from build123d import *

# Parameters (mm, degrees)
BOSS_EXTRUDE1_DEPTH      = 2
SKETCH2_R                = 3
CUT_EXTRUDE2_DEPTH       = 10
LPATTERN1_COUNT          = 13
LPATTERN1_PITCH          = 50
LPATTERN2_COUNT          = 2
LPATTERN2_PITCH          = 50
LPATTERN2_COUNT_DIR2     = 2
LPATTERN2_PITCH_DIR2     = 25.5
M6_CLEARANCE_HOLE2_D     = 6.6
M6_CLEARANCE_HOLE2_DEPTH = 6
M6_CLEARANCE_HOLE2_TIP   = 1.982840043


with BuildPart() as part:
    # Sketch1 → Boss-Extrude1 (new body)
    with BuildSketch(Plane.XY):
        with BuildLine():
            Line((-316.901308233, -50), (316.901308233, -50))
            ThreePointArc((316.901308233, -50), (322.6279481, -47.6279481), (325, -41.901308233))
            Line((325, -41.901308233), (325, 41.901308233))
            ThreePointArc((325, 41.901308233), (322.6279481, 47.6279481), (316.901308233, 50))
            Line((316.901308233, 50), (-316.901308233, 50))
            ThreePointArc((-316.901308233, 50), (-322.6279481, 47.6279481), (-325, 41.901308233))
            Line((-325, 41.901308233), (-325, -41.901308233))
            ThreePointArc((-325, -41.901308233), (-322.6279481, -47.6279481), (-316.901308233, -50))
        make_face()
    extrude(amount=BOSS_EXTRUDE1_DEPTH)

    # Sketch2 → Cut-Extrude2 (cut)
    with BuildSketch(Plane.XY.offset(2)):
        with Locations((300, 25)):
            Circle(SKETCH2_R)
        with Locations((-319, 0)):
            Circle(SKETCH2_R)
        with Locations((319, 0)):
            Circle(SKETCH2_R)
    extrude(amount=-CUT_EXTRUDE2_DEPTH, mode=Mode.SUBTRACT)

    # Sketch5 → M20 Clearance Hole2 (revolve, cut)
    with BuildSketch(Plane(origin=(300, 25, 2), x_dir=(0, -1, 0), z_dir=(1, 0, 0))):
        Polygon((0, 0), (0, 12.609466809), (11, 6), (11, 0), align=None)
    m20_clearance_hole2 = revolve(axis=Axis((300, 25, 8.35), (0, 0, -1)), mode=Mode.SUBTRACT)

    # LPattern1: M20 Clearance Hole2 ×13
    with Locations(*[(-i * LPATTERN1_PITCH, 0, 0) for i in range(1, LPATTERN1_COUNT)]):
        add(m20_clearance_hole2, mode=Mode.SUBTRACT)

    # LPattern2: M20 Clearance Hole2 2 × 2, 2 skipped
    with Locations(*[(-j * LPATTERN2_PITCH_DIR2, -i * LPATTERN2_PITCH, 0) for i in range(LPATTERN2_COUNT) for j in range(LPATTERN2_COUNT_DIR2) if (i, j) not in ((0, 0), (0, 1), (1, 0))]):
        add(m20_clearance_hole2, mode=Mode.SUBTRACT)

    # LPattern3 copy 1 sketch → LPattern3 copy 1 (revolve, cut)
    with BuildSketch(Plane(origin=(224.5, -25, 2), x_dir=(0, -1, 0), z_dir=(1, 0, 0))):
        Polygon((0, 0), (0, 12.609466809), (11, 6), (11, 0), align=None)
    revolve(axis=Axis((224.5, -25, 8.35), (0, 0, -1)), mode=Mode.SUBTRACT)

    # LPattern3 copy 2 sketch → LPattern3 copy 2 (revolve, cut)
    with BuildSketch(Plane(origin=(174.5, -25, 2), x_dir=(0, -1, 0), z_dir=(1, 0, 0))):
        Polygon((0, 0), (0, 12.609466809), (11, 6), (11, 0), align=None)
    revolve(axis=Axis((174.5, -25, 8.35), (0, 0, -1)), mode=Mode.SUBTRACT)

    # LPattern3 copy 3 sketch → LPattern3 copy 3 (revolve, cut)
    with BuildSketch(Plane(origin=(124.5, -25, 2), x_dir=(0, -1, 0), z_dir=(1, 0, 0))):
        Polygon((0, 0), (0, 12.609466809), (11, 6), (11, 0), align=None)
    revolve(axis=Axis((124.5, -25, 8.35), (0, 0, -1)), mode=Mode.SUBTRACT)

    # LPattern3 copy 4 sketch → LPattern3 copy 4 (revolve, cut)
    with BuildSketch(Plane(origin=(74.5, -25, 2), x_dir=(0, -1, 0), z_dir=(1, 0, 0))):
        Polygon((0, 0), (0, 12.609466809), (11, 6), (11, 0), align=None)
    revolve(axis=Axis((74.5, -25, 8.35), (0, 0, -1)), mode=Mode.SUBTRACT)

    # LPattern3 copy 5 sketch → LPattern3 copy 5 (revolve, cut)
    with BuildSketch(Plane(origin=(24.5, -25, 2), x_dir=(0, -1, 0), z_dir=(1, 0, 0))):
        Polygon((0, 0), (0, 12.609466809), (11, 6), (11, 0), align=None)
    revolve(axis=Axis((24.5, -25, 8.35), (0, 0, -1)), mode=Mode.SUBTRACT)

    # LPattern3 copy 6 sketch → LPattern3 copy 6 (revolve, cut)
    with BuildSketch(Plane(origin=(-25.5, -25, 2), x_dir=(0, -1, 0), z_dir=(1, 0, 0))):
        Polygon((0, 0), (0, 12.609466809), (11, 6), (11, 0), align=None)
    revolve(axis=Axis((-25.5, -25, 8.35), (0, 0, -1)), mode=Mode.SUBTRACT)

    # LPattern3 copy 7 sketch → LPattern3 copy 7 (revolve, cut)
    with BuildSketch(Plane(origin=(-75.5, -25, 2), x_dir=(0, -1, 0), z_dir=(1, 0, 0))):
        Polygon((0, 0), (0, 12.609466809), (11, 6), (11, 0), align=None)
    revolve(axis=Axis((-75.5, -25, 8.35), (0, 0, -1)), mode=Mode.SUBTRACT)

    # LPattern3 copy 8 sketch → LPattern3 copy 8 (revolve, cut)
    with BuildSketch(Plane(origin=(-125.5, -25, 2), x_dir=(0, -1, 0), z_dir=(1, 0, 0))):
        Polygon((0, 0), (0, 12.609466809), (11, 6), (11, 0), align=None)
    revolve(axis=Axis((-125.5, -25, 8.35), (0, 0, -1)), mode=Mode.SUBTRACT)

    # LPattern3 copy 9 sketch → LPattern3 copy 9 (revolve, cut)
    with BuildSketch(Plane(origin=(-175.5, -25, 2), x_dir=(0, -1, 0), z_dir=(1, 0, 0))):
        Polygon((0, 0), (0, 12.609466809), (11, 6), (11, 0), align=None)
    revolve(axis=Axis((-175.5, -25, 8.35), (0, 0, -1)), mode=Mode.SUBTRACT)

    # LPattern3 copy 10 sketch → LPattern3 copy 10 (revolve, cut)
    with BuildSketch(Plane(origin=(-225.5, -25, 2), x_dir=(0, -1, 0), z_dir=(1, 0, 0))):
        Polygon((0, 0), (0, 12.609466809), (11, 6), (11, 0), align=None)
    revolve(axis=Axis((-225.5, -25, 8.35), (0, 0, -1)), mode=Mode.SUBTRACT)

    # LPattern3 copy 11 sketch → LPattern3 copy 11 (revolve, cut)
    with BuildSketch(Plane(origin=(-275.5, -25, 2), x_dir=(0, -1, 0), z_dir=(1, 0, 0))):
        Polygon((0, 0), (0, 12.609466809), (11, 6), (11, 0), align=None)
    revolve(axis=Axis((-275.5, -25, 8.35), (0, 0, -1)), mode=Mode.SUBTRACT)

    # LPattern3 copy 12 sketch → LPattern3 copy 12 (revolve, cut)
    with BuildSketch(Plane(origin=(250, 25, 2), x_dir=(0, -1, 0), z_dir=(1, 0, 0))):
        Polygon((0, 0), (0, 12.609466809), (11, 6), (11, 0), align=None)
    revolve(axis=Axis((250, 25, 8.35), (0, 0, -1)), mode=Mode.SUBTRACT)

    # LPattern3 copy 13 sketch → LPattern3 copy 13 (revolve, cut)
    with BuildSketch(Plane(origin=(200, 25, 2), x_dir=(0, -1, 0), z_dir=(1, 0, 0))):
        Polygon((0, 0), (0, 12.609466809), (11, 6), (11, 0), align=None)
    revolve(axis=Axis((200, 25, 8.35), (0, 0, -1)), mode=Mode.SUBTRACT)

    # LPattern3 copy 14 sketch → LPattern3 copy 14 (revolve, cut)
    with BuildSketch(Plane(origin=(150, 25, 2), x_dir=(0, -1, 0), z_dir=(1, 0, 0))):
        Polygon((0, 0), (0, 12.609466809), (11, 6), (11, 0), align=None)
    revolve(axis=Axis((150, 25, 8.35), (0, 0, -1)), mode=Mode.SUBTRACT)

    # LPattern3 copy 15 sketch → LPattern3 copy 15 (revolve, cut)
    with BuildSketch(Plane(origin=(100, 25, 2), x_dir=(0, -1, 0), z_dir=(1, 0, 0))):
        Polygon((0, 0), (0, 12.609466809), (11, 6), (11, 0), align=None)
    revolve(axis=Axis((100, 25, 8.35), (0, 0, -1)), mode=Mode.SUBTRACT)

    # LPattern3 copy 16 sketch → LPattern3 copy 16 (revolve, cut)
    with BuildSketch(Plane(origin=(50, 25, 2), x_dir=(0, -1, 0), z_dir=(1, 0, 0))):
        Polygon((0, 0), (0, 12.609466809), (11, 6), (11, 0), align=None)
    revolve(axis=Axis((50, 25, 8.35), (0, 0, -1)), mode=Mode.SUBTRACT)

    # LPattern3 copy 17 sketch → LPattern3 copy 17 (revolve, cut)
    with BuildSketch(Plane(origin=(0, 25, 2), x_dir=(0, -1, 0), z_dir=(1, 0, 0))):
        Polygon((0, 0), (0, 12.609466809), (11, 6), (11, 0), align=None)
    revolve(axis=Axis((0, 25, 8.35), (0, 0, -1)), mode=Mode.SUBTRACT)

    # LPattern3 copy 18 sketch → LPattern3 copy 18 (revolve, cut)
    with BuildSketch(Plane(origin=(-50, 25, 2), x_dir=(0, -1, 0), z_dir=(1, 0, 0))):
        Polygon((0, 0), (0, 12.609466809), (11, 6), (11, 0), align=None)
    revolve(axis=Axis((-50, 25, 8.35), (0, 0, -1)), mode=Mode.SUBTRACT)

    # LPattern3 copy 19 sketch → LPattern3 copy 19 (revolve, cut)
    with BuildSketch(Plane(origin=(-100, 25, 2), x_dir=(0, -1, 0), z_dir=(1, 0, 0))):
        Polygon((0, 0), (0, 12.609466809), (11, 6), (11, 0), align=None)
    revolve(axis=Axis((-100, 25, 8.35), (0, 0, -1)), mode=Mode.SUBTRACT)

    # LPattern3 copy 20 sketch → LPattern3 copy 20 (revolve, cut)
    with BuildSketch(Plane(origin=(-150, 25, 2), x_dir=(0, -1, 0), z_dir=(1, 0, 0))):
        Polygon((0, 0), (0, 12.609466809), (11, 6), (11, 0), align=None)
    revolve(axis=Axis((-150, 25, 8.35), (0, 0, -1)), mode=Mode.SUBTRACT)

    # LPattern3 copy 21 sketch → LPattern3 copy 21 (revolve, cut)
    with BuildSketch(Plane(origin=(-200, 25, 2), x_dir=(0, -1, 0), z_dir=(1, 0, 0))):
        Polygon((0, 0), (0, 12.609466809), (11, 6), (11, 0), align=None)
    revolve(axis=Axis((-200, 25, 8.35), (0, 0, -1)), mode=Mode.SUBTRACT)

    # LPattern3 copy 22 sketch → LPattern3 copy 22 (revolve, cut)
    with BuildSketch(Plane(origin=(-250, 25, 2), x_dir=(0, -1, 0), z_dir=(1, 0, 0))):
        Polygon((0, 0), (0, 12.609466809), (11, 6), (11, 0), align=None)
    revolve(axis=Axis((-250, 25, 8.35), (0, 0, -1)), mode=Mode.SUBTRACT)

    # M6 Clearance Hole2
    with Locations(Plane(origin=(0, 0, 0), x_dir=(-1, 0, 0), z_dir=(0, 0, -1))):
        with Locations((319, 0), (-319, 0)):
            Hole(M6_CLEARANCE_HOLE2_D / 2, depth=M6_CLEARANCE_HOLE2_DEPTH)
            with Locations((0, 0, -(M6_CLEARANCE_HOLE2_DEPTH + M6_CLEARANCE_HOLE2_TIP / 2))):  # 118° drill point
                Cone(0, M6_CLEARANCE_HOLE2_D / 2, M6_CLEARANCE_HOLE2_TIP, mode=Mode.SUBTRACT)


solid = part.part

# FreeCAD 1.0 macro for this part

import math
import FreeCAD as App
import Part
import Sketcher
Q = App.Units.Quantity


def add_polygon(sketch, points):
    """Adds a closed chain of lines whose ends are joined by coincident constraints."""
    first, n = sketch.GeometryCount, len(points)
    for a, b in zip(points, points[1:] + points[:1]):
        sketch.addGeometry(Part.LineSegment(App.Vector(*a, 0), App.Vector(*b, 0)), False)
    for i in range(n):
        sketch.addConstraint(Sketcher.Constraint("Coincident", first + i, 2, first + (i + 1) % n, 1))

doc = App.newDocument("Part")
body = doc.addObject("PartDesign::Body", "Body")

sketch1 = doc.addObject("Sketcher::SketchObject", "Sketch")
body.addObject(sketch1)
sketch1.AttachmentSupport = (doc.XY_Plane, [""])
sketch1.MapMode = "FlatFace"
sketch1.addGeometry([
    Part.LineSegment(App.Vector(-316.901308, -50, 0), App.Vector(316.901308, -50, 0)),
    Part.ArcOfCircle(Part.Circle(App.Vector(316.901308, -41.901308, 0), App.Vector(0, 0, 1), 8.098692), math.radians(-90), math.radians(0)),
    Part.LineSegment(App.Vector(325, -41.901308, 0), App.Vector(325, 41.901308, 0)),
    Part.ArcOfCircle(Part.Circle(App.Vector(316.901308, 41.901308, 0), App.Vector(0, 0, 1), 8.098692), math.radians(0), math.radians(90)),
    Part.LineSegment(App.Vector(316.901308, 50, 0), App.Vector(-316.901308, 50, 0)),
    Part.ArcOfCircle(Part.Circle(App.Vector(-316.901308, 41.901308, 0), App.Vector(0, 0, 1), 8.098692), math.radians(90), math.radians(180)),
    Part.LineSegment(App.Vector(-325, 41.901308, 0), App.Vector(-325, -41.901308, 0)),
    Part.ArcOfCircle(Part.Circle(App.Vector(-316.901308, -41.901308, 0), App.Vector(0, 0, 1), 8.098692), math.radians(-180), math.radians(-90)),
], False)
sketch1.addConstraint([
    Sketcher.Constraint("Tangent", 0, 2, 1, 1),
    Sketcher.Constraint("Tangent", 1, 2, 2, 1),
    Sketcher.Constraint("Tangent", 2, 2, 3, 1),
    Sketcher.Constraint("Tangent", 3, 2, 4, 1),
    Sketcher.Constraint("Tangent", 4, 2, 5, 1),
    Sketcher.Constraint("Tangent", 5, 2, 6, 1),
    Sketcher.Constraint("Tangent", 6, 2, 7, 1),
    Sketcher.Constraint("Tangent", 7, 2, 0, 1),
    Sketcher.Constraint("Horizontal", 0),
    Sketcher.Constraint("Vertical", 2),
    Sketcher.Constraint("Horizontal", 4),
    Sketcher.Constraint("Vertical", 6),
    Sketcher.Constraint("Equal", 1, 3),
    Sketcher.Constraint("Equal", 3, 5),
    Sketcher.Constraint("Equal", 5, 7),
    Sketcher.Constraint("Symmetric", 1, 3, 5, 3, -1, 1),
    Sketcher.Constraint("DistanceY", 0, 2, -1, 1, 50.0),
    Sketcher.Constraint("DistanceX", -1, 1, 1, 2, 325.0),
    Sketcher.Constraint("Radius", 1, 8.098692),
])
pad1 = doc.addObject("PartDesign::Pad", "Pad")
body.addObject(pad1)
pad1.Profile = sketch1
pad1.Length = 2

sketch2 = doc.addObject("Sketcher::SketchObject", "Sketch001")
body.addObject(sketch2)
sketch2.AttachmentSupport = (doc.XY_Plane, [""])
sketch2.MapMode = "FlatFace"
sketch2.AttachmentOffset = App.Placement(App.Vector(0, 0, 2), App.Rotation())
sketch2.addGeometry([
    Part.Circle(App.Vector(300, 25, 0), App.Vector(0, 0, 1), 3),
    Part.Circle(App.Vector(-319, 0, 0), App.Vector(0, 0, 1), 3),
    Part.Circle(App.Vector(319, 0, 0), App.Vector(0, 0, 1), 3),
], False)
sketch2.addConstraint([
    Sketcher.Constraint("Equal", 0, 1),
    Sketcher.Constraint("Equal", 1, 2),
    Sketcher.Constraint("Symmetric", 1, 3, 2, 3, -1, 1),
    Sketcher.Constraint("PointOnObject", 1, 3, -1),
    Sketcher.Constraint("Diameter", 0, 6.0),
    Sketcher.Constraint("DistanceX", -1, 1, 0, 3, 300.0),
    Sketcher.Constraint("DistanceY", -1, 1, 0, 3, 25.0),
    Sketcher.Constraint("DistanceX", 1, 3, -1, 1, 319.0),
])
pocket1 = doc.addObject("PartDesign::Pocket", "Pocket")
body.addObject(pocket1)
pocket1.Profile = sketch2
pocket1.Length = 10

sketch3 = doc.addObject("Sketcher::SketchObject", "Sketch002")
body.addObject(sketch3)
sketch3.AttachmentSupport = (doc.YZ_Plane, [""])
sketch3.MapMode = "FlatFace"
sketch3.AttachmentOffset = App.Placement(App.Vector(0, 0, 300), App.Rotation())
add_polygon(sketch3, [(25, -10.609467), (25, 2), (14, 2), (14, -4)])
sketch3.addGeometry(Part.LineSegment(App.Vector(25, 2, 0), App.Vector(25, -10.609467, 0)), True)
sketch3.addConstraint([
    Sketcher.Constraint("Vertical", 0),
    Sketcher.Constraint("Horizontal", 1),
    Sketcher.Constraint("Vertical", 2),
    Sketcher.Constraint("Vertical", 4),
    Sketcher.Constraint("Coincident", 4, 1, 0, 2),
    Sketcher.Constraint("Equal", 0, 4),
    Sketcher.Constraint("DistanceX", 1, 2, 1, 1, 11.0),
    Sketcher.Constraint("DistanceY", 2, 2, 2, 1, 6.0),
    Sketcher.Constraint("Angle", 3, Q("-31 deg")),
    Sketcher.Constraint("DistanceX", -1, 1, 0, 2, 25.0),
    Sketcher.Constraint("DistanceY", -1, 1, 0, 2, 2.0),
])
groove = doc.addObject("PartDesign::Groove", "Groove")
body.addObject(groove)
groove.Profile = sketch3
groove.ReferenceAxis = (sketch3, ["Axis0"])
groove.Angle = 360
doc.recompute()

linearpattern = doc.addObject("PartDesign::LinearPattern", "LinearPattern")
body.addObject(linearpattern)
linearpattern.Originals = [groove]
linearpattern.Direction = (doc.X_Axis, [""])
linearpattern.Mode = "offset"
linearpattern.Offset = 50
linearpattern.Occurrences = 13
linearpattern.Reversed = True
body.Tip = linearpattern
doc.recompute()

datumline = doc.addObject("PartDesign::Line", "DatumLine")
body.addObject(datumline)
datumline.Placement = App.Placement(App.Vector(0, 0, 0), App.Rotation(App.Vector(0, 0, 1), App.Vector(-0.454326083, -0.890835456, 0)))
linearpattern2 = doc.addObject("PartDesign::LinearPattern", "LinearPattern001")
body.addObject(linearpattern2)
linearpattern2.Originals = [groove]
linearpattern2.Direction = (datumline, [""])
linearpattern2.Mode = "offset"
linearpattern2.Offset = 56.127088
linearpattern2.Occurrences = 2
body.Tip = linearpattern2

sketch4 = doc.addObject("Sketcher::SketchObject", "Sketch003")
body.addObject(sketch4)
sketch4.AttachmentSupport = (doc.YZ_Plane, [""])
sketch4.MapMode = "FlatFace"
sketch4.AttachmentOffset = App.Placement(App.Vector(0, 0, 224.5), App.Rotation())
add_polygon(sketch4, [(-25, -10.609467), (-25, 2), (-36, 2), (-36, -4)])
sketch4.addGeometry(Part.LineSegment(App.Vector(-25, 2, 0), App.Vector(-25, -10.609467, 0)), True)
sketch4.addConstraint([
    Sketcher.Constraint("Vertical", 0),
    Sketcher.Constraint("Horizontal", 1),
    Sketcher.Constraint("Vertical", 2),
    Sketcher.Constraint("Vertical", 4),
    Sketcher.Constraint("Coincident", 4, 1, 0, 2),
    Sketcher.Constraint("Equal", 0, 4),
    Sketcher.Constraint("DistanceX", 1, 2, 1, 1, 11.0),
    Sketcher.Constraint("DistanceY", 2, 2, 2, 1, 6.0),
    Sketcher.Constraint("Angle", 3, Q("-31 deg")),
    Sketcher.Constraint("DistanceX", 0, 2, -1, 1, 25.0),
    Sketcher.Constraint("DistanceY", -1, 1, 0, 2, 2.0),
])
groove2 = doc.addObject("PartDesign::Groove", "Groove001")
body.addObject(groove2)
groove2.Profile = sketch4
groove2.ReferenceAxis = (sketch4, ["Axis0"])
groove2.Angle = 360

sketch5 = doc.addObject("Sketcher::SketchObject", "Sketch004")
body.addObject(sketch5)
sketch5.AttachmentSupport = (doc.YZ_Plane, [""])
sketch5.MapMode = "FlatFace"
sketch5.AttachmentOffset = App.Placement(App.Vector(0, 0, 174.5), App.Rotation())
add_polygon(sketch5, [(-25, -10.609467), (-25, 2), (-36, 2), (-36, -4)])
sketch5.addGeometry(Part.LineSegment(App.Vector(-25, 2, 0), App.Vector(-25, -10.609467, 0)), True)
sketch5.addConstraint([
    Sketcher.Constraint("Vertical", 0),
    Sketcher.Constraint("Horizontal", 1),
    Sketcher.Constraint("Vertical", 2),
    Sketcher.Constraint("Vertical", 4),
    Sketcher.Constraint("Coincident", 4, 1, 0, 2),
    Sketcher.Constraint("Equal", 0, 4),
    Sketcher.Constraint("DistanceX", 1, 2, 1, 1, 11.0),
    Sketcher.Constraint("DistanceY", 2, 2, 2, 1, 6.0),
    Sketcher.Constraint("Angle", 3, Q("-31 deg")),
    Sketcher.Constraint("DistanceX", 0, 2, -1, 1, 25.0),
    Sketcher.Constraint("DistanceY", -1, 1, 0, 2, 2.0),
])
groove3 = doc.addObject("PartDesign::Groove", "Groove002")
body.addObject(groove3)
groove3.Profile = sketch5
groove3.ReferenceAxis = (sketch5, ["Axis0"])
groove3.Angle = 360

sketch6 = doc.addObject("Sketcher::SketchObject", "Sketch005")
body.addObject(sketch6)
sketch6.AttachmentSupport = (doc.YZ_Plane, [""])
sketch6.MapMode = "FlatFace"
sketch6.AttachmentOffset = App.Placement(App.Vector(0, 0, 124.5), App.Rotation())
add_polygon(sketch6, [(-25, -10.609467), (-25, 2), (-36, 2), (-36, -4)])
sketch6.addGeometry(Part.LineSegment(App.Vector(-25, 2, 0), App.Vector(-25, -10.609467, 0)), True)
sketch6.addConstraint([
    Sketcher.Constraint("Vertical", 0),
    Sketcher.Constraint("Horizontal", 1),
    Sketcher.Constraint("Vertical", 2),
    Sketcher.Constraint("Vertical", 4),
    Sketcher.Constraint("Coincident", 4, 1, 0, 2),
    Sketcher.Constraint("Equal", 0, 4),
    Sketcher.Constraint("DistanceX", 1, 2, 1, 1, 11.0),
    Sketcher.Constraint("DistanceY", 2, 2, 2, 1, 6.0),
    Sketcher.Constraint("Angle", 3, Q("-31 deg")),
    Sketcher.Constraint("DistanceX", 0, 2, -1, 1, 25.0),
    Sketcher.Constraint("DistanceY", -1, 1, 0, 2, 2.0),
])
groove4 = doc.addObject("PartDesign::Groove", "Groove003")
body.addObject(groove4)
groove4.Profile = sketch6
groove4.ReferenceAxis = (sketch6, ["Axis0"])
groove4.Angle = 360

sketch7 = doc.addObject("Sketcher::SketchObject", "Sketch006")
body.addObject(sketch7)
sketch7.AttachmentSupport = (doc.YZ_Plane, [""])
sketch7.MapMode = "FlatFace"
sketch7.AttachmentOffset = App.Placement(App.Vector(0, 0, 74.5), App.Rotation())
add_polygon(sketch7, [(-25, -10.609467), (-25, 2), (-36, 2), (-36, -4)])
sketch7.addGeometry(Part.LineSegment(App.Vector(-25, 2, 0), App.Vector(-25, -10.609467, 0)), True)
sketch7.addConstraint([
    Sketcher.Constraint("Vertical", 0),
    Sketcher.Constraint("Horizontal", 1),
    Sketcher.Constraint("Vertical", 2),
    Sketcher.Constraint("Vertical", 4),
    Sketcher.Constraint("Coincident", 4, 1, 0, 2),
    Sketcher.Constraint("Equal", 0, 4),
    Sketcher.Constraint("DistanceX", 1, 2, 1, 1, 11.0),
    Sketcher.Constraint("DistanceY", 2, 2, 2, 1, 6.0),
    Sketcher.Constraint("Angle", 3, Q("-31 deg")),
    Sketcher.Constraint("DistanceX", 0, 2, -1, 1, 25.0),
    Sketcher.Constraint("DistanceY", -1, 1, 0, 2, 2.0),
])
groove5 = doc.addObject("PartDesign::Groove", "Groove004")
body.addObject(groove5)
groove5.Profile = sketch7
groove5.ReferenceAxis = (sketch7, ["Axis0"])
groove5.Angle = 360

sketch8 = doc.addObject("Sketcher::SketchObject", "Sketch007")
body.addObject(sketch8)
sketch8.AttachmentSupport = (doc.YZ_Plane, [""])
sketch8.MapMode = "FlatFace"
sketch8.AttachmentOffset = App.Placement(App.Vector(0, 0, 24.5), App.Rotation())
add_polygon(sketch8, [(-25, -10.609467), (-25, 2), (-36, 2), (-36, -4)])
sketch8.addGeometry(Part.LineSegment(App.Vector(-25, 2, 0), App.Vector(-25, -10.609467, 0)), True)
sketch8.addConstraint([
    Sketcher.Constraint("Vertical", 0),
    Sketcher.Constraint("Horizontal", 1),
    Sketcher.Constraint("Vertical", 2),
    Sketcher.Constraint("Vertical", 4),
    Sketcher.Constraint("Coincident", 4, 1, 0, 2),
    Sketcher.Constraint("Equal", 0, 4),
    Sketcher.Constraint("DistanceX", 1, 2, 1, 1, 11.0),
    Sketcher.Constraint("DistanceY", 2, 2, 2, 1, 6.0),
    Sketcher.Constraint("Angle", 3, Q("-31 deg")),
    Sketcher.Constraint("DistanceX", 0, 2, -1, 1, 25.0),
    Sketcher.Constraint("DistanceY", -1, 1, 0, 2, 2.0),
])
groove6 = doc.addObject("PartDesign::Groove", "Groove005")
body.addObject(groove6)
groove6.Profile = sketch8
groove6.ReferenceAxis = (sketch8, ["Axis0"])
groove6.Angle = 360

sketch9 = doc.addObject("Sketcher::SketchObject", "Sketch008")
body.addObject(sketch9)
sketch9.AttachmentSupport = (doc.YZ_Plane, [""])
sketch9.MapMode = "FlatFace"
sketch9.AttachmentOffset = App.Placement(App.Vector(0, 0, -25.5), App.Rotation())
add_polygon(sketch9, [(-25, -10.609467), (-25, 2), (-36, 2), (-36, -4)])
sketch9.addGeometry(Part.LineSegment(App.Vector(-25, 2, 0), App.Vector(-25, -10.609467, 0)), True)
sketch9.addConstraint([
    Sketcher.Constraint("Vertical", 0),
    Sketcher.Constraint("Horizontal", 1),
    Sketcher.Constraint("Vertical", 2),
    Sketcher.Constraint("Vertical", 4),
    Sketcher.Constraint("Coincident", 4, 1, 0, 2),
    Sketcher.Constraint("Equal", 0, 4),
    Sketcher.Constraint("DistanceX", 1, 2, 1, 1, 11.0),
    Sketcher.Constraint("DistanceY", 2, 2, 2, 1, 6.0),
    Sketcher.Constraint("Angle", 3, Q("-31 deg")),
    Sketcher.Constraint("DistanceX", 0, 2, -1, 1, 25.0),
    Sketcher.Constraint("DistanceY", -1, 1, 0, 2, 2.0),
])
groove7 = doc.addObject("PartDesign::Groove", "Groove006")
body.addObject(groove7)
groove7.Profile = sketch9
groove7.ReferenceAxis = (sketch9, ["Axis0"])
groove7.Angle = 360

sketch10 = doc.addObject("Sketcher::SketchObject", "Sketch009")
body.addObject(sketch10)
sketch10.AttachmentSupport = (doc.YZ_Plane, [""])
sketch10.MapMode = "FlatFace"
sketch10.AttachmentOffset = App.Placement(App.Vector(0, 0, -75.5), App.Rotation())
add_polygon(sketch10, [(-25, -10.609467), (-25, 2), (-36, 2), (-36, -4)])
sketch10.addGeometry(Part.LineSegment(App.Vector(-25, 2, 0), App.Vector(-25, -10.609467, 0)), True)
sketch10.addConstraint([
    Sketcher.Constraint("Vertical", 0),
    Sketcher.Constraint("Horizontal", 1),
    Sketcher.Constraint("Vertical", 2),
    Sketcher.Constraint("Vertical", 4),
    Sketcher.Constraint("Coincident", 4, 1, 0, 2),
    Sketcher.Constraint("Equal", 0, 4),
    Sketcher.Constraint("DistanceX", 1, 2, 1, 1, 11.0),
    Sketcher.Constraint("DistanceY", 2, 2, 2, 1, 6.0),
    Sketcher.Constraint("Angle", 3, Q("-31 deg")),
    Sketcher.Constraint("DistanceX", 0, 2, -1, 1, 25.0),
    Sketcher.Constraint("DistanceY", -1, 1, 0, 2, 2.0),
])
groove8 = doc.addObject("PartDesign::Groove", "Groove007")
body.addObject(groove8)
groove8.Profile = sketch10
groove8.ReferenceAxis = (sketch10, ["Axis0"])
groove8.Angle = 360

sketch11 = doc.addObject("Sketcher::SketchObject", "Sketch010")
body.addObject(sketch11)
sketch11.AttachmentSupport = (doc.YZ_Plane, [""])
sketch11.MapMode = "FlatFace"
sketch11.AttachmentOffset = App.Placement(App.Vector(0, 0, -125.5), App.Rotation())
add_polygon(sketch11, [(-25, -10.609467), (-25, 2), (-36, 2), (-36, -4)])
sketch11.addGeometry(Part.LineSegment(App.Vector(-25, 2, 0), App.Vector(-25, -10.609467, 0)), True)
sketch11.addConstraint([
    Sketcher.Constraint("Vertical", 0),
    Sketcher.Constraint("Horizontal", 1),
    Sketcher.Constraint("Vertical", 2),
    Sketcher.Constraint("Vertical", 4),
    Sketcher.Constraint("Coincident", 4, 1, 0, 2),
    Sketcher.Constraint("Equal", 0, 4),
    Sketcher.Constraint("DistanceX", 1, 2, 1, 1, 11.0),
    Sketcher.Constraint("DistanceY", 2, 2, 2, 1, 6.0),
    Sketcher.Constraint("Angle", 3, Q("-31 deg")),
    Sketcher.Constraint("DistanceX", 0, 2, -1, 1, 25.0),
    Sketcher.Constraint("DistanceY", -1, 1, 0, 2, 2.0),
])
groove9 = doc.addObject("PartDesign::Groove", "Groove008")
body.addObject(groove9)
groove9.Profile = sketch11
groove9.ReferenceAxis = (sketch11, ["Axis0"])
groove9.Angle = 360

sketch12 = doc.addObject("Sketcher::SketchObject", "Sketch011")
body.addObject(sketch12)
sketch12.AttachmentSupport = (doc.YZ_Plane, [""])
sketch12.MapMode = "FlatFace"
sketch12.AttachmentOffset = App.Placement(App.Vector(0, 0, -175.5), App.Rotation())
add_polygon(sketch12, [(-25, -10.609467), (-25, 2), (-36, 2), (-36, -4)])
sketch12.addGeometry(Part.LineSegment(App.Vector(-25, 2, 0), App.Vector(-25, -10.609467, 0)), True)
sketch12.addConstraint([
    Sketcher.Constraint("Vertical", 0),
    Sketcher.Constraint("Horizontal", 1),
    Sketcher.Constraint("Vertical", 2),
    Sketcher.Constraint("Vertical", 4),
    Sketcher.Constraint("Coincident", 4, 1, 0, 2),
    Sketcher.Constraint("Equal", 0, 4),
    Sketcher.Constraint("DistanceX", 1, 2, 1, 1, 11.0),
    Sketcher.Constraint("DistanceY", 2, 2, 2, 1, 6.0),
    Sketcher.Constraint("Angle", 3, Q("-31 deg")),
    Sketcher.Constraint("DistanceX", 0, 2, -1, 1, 25.0),
    Sketcher.Constraint("DistanceY", -1, 1, 0, 2, 2.0),
])
groove10 = doc.addObject("PartDesign::Groove", "Groove009")
body.addObject(groove10)
groove10.Profile = sketch12
groove10.ReferenceAxis = (sketch12, ["Axis0"])
groove10.Angle = 360

sketch13 = doc.addObject("Sketcher::SketchObject", "Sketch012")
body.addObject(sketch13)
sketch13.AttachmentSupport = (doc.YZ_Plane, [""])
sketch13.MapMode = "FlatFace"
sketch13.AttachmentOffset = App.Placement(App.Vector(0, 0, -225.5), App.Rotation())
add_polygon(sketch13, [(-25, -10.609467), (-25, 2), (-36, 2), (-36, -4)])
sketch13.addGeometry(Part.LineSegment(App.Vector(-25, 2, 0), App.Vector(-25, -10.609467, 0)), True)
sketch13.addConstraint([
    Sketcher.Constraint("Vertical", 0),
    Sketcher.Constraint("Horizontal", 1),
    Sketcher.Constraint("Vertical", 2),
    Sketcher.Constraint("Vertical", 4),
    Sketcher.Constraint("Coincident", 4, 1, 0, 2),
    Sketcher.Constraint("Equal", 0, 4),
    Sketcher.Constraint("DistanceX", 1, 2, 1, 1, 11.0),
    Sketcher.Constraint("DistanceY", 2, 2, 2, 1, 6.0),
    Sketcher.Constraint("Angle", 3, Q("-31 deg")),
    Sketcher.Constraint("DistanceX", 0, 2, -1, 1, 25.0),
    Sketcher.Constraint("DistanceY", -1, 1, 0, 2, 2.0),
])
groove11 = doc.addObject("PartDesign::Groove", "Groove010")
body.addObject(groove11)
groove11.Profile = sketch13
groove11.ReferenceAxis = (sketch13, ["Axis0"])
groove11.Angle = 360

sketch14 = doc.addObject("Sketcher::SketchObject", "Sketch013")
body.addObject(sketch14)
sketch14.AttachmentSupport = (doc.YZ_Plane, [""])
sketch14.MapMode = "FlatFace"
sketch14.AttachmentOffset = App.Placement(App.Vector(0, 0, -275.5), App.Rotation())
add_polygon(sketch14, [(-25, -10.609467), (-25, 2), (-36, 2), (-36, -4)])
sketch14.addGeometry(Part.LineSegment(App.Vector(-25, 2, 0), App.Vector(-25, -10.609467, 0)), True)
sketch14.addConstraint([
    Sketcher.Constraint("Vertical", 0),
    Sketcher.Constraint("Horizontal", 1),
    Sketcher.Constraint("Vertical", 2),
    Sketcher.Constraint("Vertical", 4),
    Sketcher.Constraint("Coincident", 4, 1, 0, 2),
    Sketcher.Constraint("Equal", 0, 4),
    Sketcher.Constraint("DistanceX", 1, 2, 1, 1, 11.0),
    Sketcher.Constraint("DistanceY", 2, 2, 2, 1, 6.0),
    Sketcher.Constraint("Angle", 3, Q("-31 deg")),
    Sketcher.Constraint("DistanceX", 0, 2, -1, 1, 25.0),
    Sketcher.Constraint("DistanceY", -1, 1, 0, 2, 2.0),
])
groove12 = doc.addObject("PartDesign::Groove", "Groove011")
body.addObject(groove12)
groove12.Profile = sketch14
groove12.ReferenceAxis = (sketch14, ["Axis0"])
groove12.Angle = 360

sketch15 = doc.addObject("Sketcher::SketchObject", "Sketch014")
body.addObject(sketch15)
sketch15.AttachmentSupport = (doc.YZ_Plane, [""])
sketch15.MapMode = "FlatFace"
sketch15.AttachmentOffset = App.Placement(App.Vector(0, 0, 250), App.Rotation())
add_polygon(sketch15, [(25, -10.609467), (25, 2), (14, 2), (14, -4)])
sketch15.addGeometry(Part.LineSegment(App.Vector(25, 2, 0), App.Vector(25, -10.609467, 0)), True)
sketch15.addConstraint([
    Sketcher.Constraint("Vertical", 0),
    Sketcher.Constraint("Horizontal", 1),
    Sketcher.Constraint("Vertical", 2),
    Sketcher.Constraint("Vertical", 4),
    Sketcher.Constraint("Coincident", 4, 1, 0, 2),
    Sketcher.Constraint("Equal", 0, 4),
    Sketcher.Constraint("DistanceX", 1, 2, 1, 1, 11.0),
    Sketcher.Constraint("DistanceY", 2, 2, 2, 1, 6.0),
    Sketcher.Constraint("Angle", 3, Q("-31 deg")),
    Sketcher.Constraint("DistanceX", -1, 1, 0, 2, 25.0),
    Sketcher.Constraint("DistanceY", -1, 1, 0, 2, 2.0),
])
groove13 = doc.addObject("PartDesign::Groove", "Groove012")
body.addObject(groove13)
groove13.Profile = sketch15
groove13.ReferenceAxis = (sketch15, ["Axis0"])
groove13.Angle = 360

sketch16 = doc.addObject("Sketcher::SketchObject", "Sketch015")
body.addObject(sketch16)
sketch16.AttachmentSupport = (doc.YZ_Plane, [""])
sketch16.MapMode = "FlatFace"
sketch16.AttachmentOffset = App.Placement(App.Vector(0, 0, 200), App.Rotation())
add_polygon(sketch16, [(25, -10.609467), (25, 2), (14, 2), (14, -4)])
sketch16.addGeometry(Part.LineSegment(App.Vector(25, 2, 0), App.Vector(25, -10.609467, 0)), True)
sketch16.addConstraint([
    Sketcher.Constraint("Vertical", 0),
    Sketcher.Constraint("Horizontal", 1),
    Sketcher.Constraint("Vertical", 2),
    Sketcher.Constraint("Vertical", 4),
    Sketcher.Constraint("Coincident", 4, 1, 0, 2),
    Sketcher.Constraint("Equal", 0, 4),
    Sketcher.Constraint("DistanceX", 1, 2, 1, 1, 11.0),
    Sketcher.Constraint("DistanceY", 2, 2, 2, 1, 6.0),
    Sketcher.Constraint("Angle", 3, Q("-31 deg")),
    Sketcher.Constraint("DistanceX", -1, 1, 0, 2, 25.0),
    Sketcher.Constraint("DistanceY", -1, 1, 0, 2, 2.0),
])
groove14 = doc.addObject("PartDesign::Groove", "Groove013")
body.addObject(groove14)
groove14.Profile = sketch16
groove14.ReferenceAxis = (sketch16, ["Axis0"])
groove14.Angle = 360

sketch17 = doc.addObject("Sketcher::SketchObject", "Sketch016")
body.addObject(sketch17)
sketch17.AttachmentSupport = (doc.YZ_Plane, [""])
sketch17.MapMode = "FlatFace"
sketch17.AttachmentOffset = App.Placement(App.Vector(0, 0, 150), App.Rotation())
add_polygon(sketch17, [(25, -10.609467), (25, 2), (14, 2), (14, -4)])
sketch17.addGeometry(Part.LineSegment(App.Vector(25, 2, 0), App.Vector(25, -10.609467, 0)), True)
sketch17.addConstraint([
    Sketcher.Constraint("Vertical", 0),
    Sketcher.Constraint("Horizontal", 1),
    Sketcher.Constraint("Vertical", 2),
    Sketcher.Constraint("Vertical", 4),
    Sketcher.Constraint("Coincident", 4, 1, 0, 2),
    Sketcher.Constraint("Equal", 0, 4),
    Sketcher.Constraint("DistanceX", 1, 2, 1, 1, 11.0),
    Sketcher.Constraint("DistanceY", 2, 2, 2, 1, 6.0),
    Sketcher.Constraint("Angle", 3, Q("-31 deg")),
    Sketcher.Constraint("DistanceX", -1, 1, 0, 2, 25.0),
    Sketcher.Constraint("DistanceY", -1, 1, 0, 2, 2.0),
])
groove15 = doc.addObject("PartDesign::Groove", "Groove014")
body.addObject(groove15)
groove15.Profile = sketch17
groove15.ReferenceAxis = (sketch17, ["Axis0"])
groove15.Angle = 360

sketch18 = doc.addObject("Sketcher::SketchObject", "Sketch017")
body.addObject(sketch18)
sketch18.AttachmentSupport = (doc.YZ_Plane, [""])
sketch18.MapMode = "FlatFace"
sketch18.AttachmentOffset = App.Placement(App.Vector(0, 0, 100), App.Rotation())
add_polygon(sketch18, [(25, -10.609467), (25, 2), (14, 2), (14, -4)])
sketch18.addGeometry(Part.LineSegment(App.Vector(25, 2, 0), App.Vector(25, -10.609467, 0)), True)
sketch18.addConstraint([
    Sketcher.Constraint("Vertical", 0),
    Sketcher.Constraint("Horizontal", 1),
    Sketcher.Constraint("Vertical", 2),
    Sketcher.Constraint("Vertical", 4),
    Sketcher.Constraint("Coincident", 4, 1, 0, 2),
    Sketcher.Constraint("Equal", 0, 4),
    Sketcher.Constraint("DistanceX", 1, 2, 1, 1, 11.0),
    Sketcher.Constraint("DistanceY", 2, 2, 2, 1, 6.0),
    Sketcher.Constraint("Angle", 3, Q("-31 deg")),
    Sketcher.Constraint("DistanceX", -1, 1, 0, 2, 25.0),
    Sketcher.Constraint("DistanceY", -1, 1, 0, 2, 2.0),
])
groove16 = doc.addObject("PartDesign::Groove", "Groove015")
body.addObject(groove16)
groove16.Profile = sketch18
groove16.ReferenceAxis = (sketch18, ["Axis0"])
groove16.Angle = 360

sketch19 = doc.addObject("Sketcher::SketchObject", "Sketch018")
body.addObject(sketch19)
sketch19.AttachmentSupport = (doc.YZ_Plane, [""])
sketch19.MapMode = "FlatFace"
sketch19.AttachmentOffset = App.Placement(App.Vector(0, 0, 50), App.Rotation())
add_polygon(sketch19, [(25, -10.609467), (25, 2), (14, 2), (14, -4)])
sketch19.addGeometry(Part.LineSegment(App.Vector(25, 2, 0), App.Vector(25, -10.609467, 0)), True)
sketch19.addConstraint([
    Sketcher.Constraint("Vertical", 0),
    Sketcher.Constraint("Horizontal", 1),
    Sketcher.Constraint("Vertical", 2),
    Sketcher.Constraint("Vertical", 4),
    Sketcher.Constraint("Coincident", 4, 1, 0, 2),
    Sketcher.Constraint("Equal", 0, 4),
    Sketcher.Constraint("DistanceX", 1, 2, 1, 1, 11.0),
    Sketcher.Constraint("DistanceY", 2, 2, 2, 1, 6.0),
    Sketcher.Constraint("Angle", 3, Q("-31 deg")),
    Sketcher.Constraint("DistanceX", -1, 1, 0, 2, 25.0),
    Sketcher.Constraint("DistanceY", -1, 1, 0, 2, 2.0),
])
groove17 = doc.addObject("PartDesign::Groove", "Groove016")
body.addObject(groove17)
groove17.Profile = sketch19
groove17.ReferenceAxis = (sketch19, ["Axis0"])
groove17.Angle = 360

sketch20 = doc.addObject("Sketcher::SketchObject", "Sketch019")
body.addObject(sketch20)
sketch20.AttachmentSupport = (doc.YZ_Plane, [""])
sketch20.MapMode = "FlatFace"
add_polygon(sketch20, [(25, -10.609467), (25, 2), (14, 2), (14, -4)])
sketch20.addGeometry(Part.LineSegment(App.Vector(25, 2, 0), App.Vector(25, -10.609467, 0)), True)
sketch20.addConstraint([
    Sketcher.Constraint("Vertical", 0),
    Sketcher.Constraint("Horizontal", 1),
    Sketcher.Constraint("Vertical", 2),
    Sketcher.Constraint("Vertical", 4),
    Sketcher.Constraint("Coincident", 4, 1, 0, 2),
    Sketcher.Constraint("Equal", 0, 4),
    Sketcher.Constraint("DistanceX", 1, 2, 1, 1, 11.0),
    Sketcher.Constraint("DistanceY", 2, 2, 2, 1, 6.0),
    Sketcher.Constraint("Angle", 3, Q("-31 deg")),
    Sketcher.Constraint("DistanceX", -1, 1, 0, 2, 25.0),
    Sketcher.Constraint("DistanceY", -1, 1, 0, 2, 2.0),
])
groove18 = doc.addObject("PartDesign::Groove", "Groove017")
body.addObject(groove18)
groove18.Profile = sketch20
groove18.ReferenceAxis = (sketch20, ["Axis0"])
groove18.Angle = 360

sketch21 = doc.addObject("Sketcher::SketchObject", "Sketch020")
body.addObject(sketch21)
sketch21.AttachmentSupport = (doc.YZ_Plane, [""])
sketch21.MapMode = "FlatFace"
sketch21.AttachmentOffset = App.Placement(App.Vector(0, 0, -50), App.Rotation())
add_polygon(sketch21, [(25, -10.609467), (25, 2), (14, 2), (14, -4)])
sketch21.addGeometry(Part.LineSegment(App.Vector(25, 2, 0), App.Vector(25, -10.609467, 0)), True)
sketch21.addConstraint([
    Sketcher.Constraint("Vertical", 0),
    Sketcher.Constraint("Horizontal", 1),
    Sketcher.Constraint("Vertical", 2),
    Sketcher.Constraint("Vertical", 4),
    Sketcher.Constraint("Coincident", 4, 1, 0, 2),
    Sketcher.Constraint("Equal", 0, 4),
    Sketcher.Constraint("DistanceX", 1, 2, 1, 1, 11.0),
    Sketcher.Constraint("DistanceY", 2, 2, 2, 1, 6.0),
    Sketcher.Constraint("Angle", 3, Q("-31 deg")),
    Sketcher.Constraint("DistanceX", -1, 1, 0, 2, 25.0),
    Sketcher.Constraint("DistanceY", -1, 1, 0, 2, 2.0),
])
groove19 = doc.addObject("PartDesign::Groove", "Groove018")
body.addObject(groove19)
groove19.Profile = sketch21
groove19.ReferenceAxis = (sketch21, ["Axis0"])
groove19.Angle = 360

sketch22 = doc.addObject("Sketcher::SketchObject", "Sketch021")
body.addObject(sketch22)
sketch22.AttachmentSupport = (doc.YZ_Plane, [""])
sketch22.MapMode = "FlatFace"
sketch22.AttachmentOffset = App.Placement(App.Vector(0, 0, -100), App.Rotation())
add_polygon(sketch22, [(25, -10.609467), (25, 2), (14, 2), (14, -4)])
sketch22.addGeometry(Part.LineSegment(App.Vector(25, 2, 0), App.Vector(25, -10.609467, 0)), True)
sketch22.addConstraint([
    Sketcher.Constraint("Vertical", 0),
    Sketcher.Constraint("Horizontal", 1),
    Sketcher.Constraint("Vertical", 2),
    Sketcher.Constraint("Vertical", 4),
    Sketcher.Constraint("Coincident", 4, 1, 0, 2),
    Sketcher.Constraint("Equal", 0, 4),
    Sketcher.Constraint("DistanceX", 1, 2, 1, 1, 11.0),
    Sketcher.Constraint("DistanceY", 2, 2, 2, 1, 6.0),
    Sketcher.Constraint("Angle", 3, Q("-31 deg")),
    Sketcher.Constraint("DistanceX", -1, 1, 0, 2, 25.0),
    Sketcher.Constraint("DistanceY", -1, 1, 0, 2, 2.0),
])
groove20 = doc.addObject("PartDesign::Groove", "Groove019")
body.addObject(groove20)
groove20.Profile = sketch22
groove20.ReferenceAxis = (sketch22, ["Axis0"])
groove20.Angle = 360

sketch23 = doc.addObject("Sketcher::SketchObject", "Sketch022")
body.addObject(sketch23)
sketch23.AttachmentSupport = (doc.YZ_Plane, [""])
sketch23.MapMode = "FlatFace"
sketch23.AttachmentOffset = App.Placement(App.Vector(0, 0, -150), App.Rotation())
add_polygon(sketch23, [(25, -10.609467), (25, 2), (14, 2), (14, -4)])
sketch23.addGeometry(Part.LineSegment(App.Vector(25, 2, 0), App.Vector(25, -10.609467, 0)), True)
sketch23.addConstraint([
    Sketcher.Constraint("Vertical", 0),
    Sketcher.Constraint("Horizontal", 1),
    Sketcher.Constraint("Vertical", 2),
    Sketcher.Constraint("Vertical", 4),
    Sketcher.Constraint("Coincident", 4, 1, 0, 2),
    Sketcher.Constraint("Equal", 0, 4),
    Sketcher.Constraint("DistanceX", 1, 2, 1, 1, 11.0),
    Sketcher.Constraint("DistanceY", 2, 2, 2, 1, 6.0),
    Sketcher.Constraint("Angle", 3, Q("-31 deg")),
    Sketcher.Constraint("DistanceX", -1, 1, 0, 2, 25.0),
    Sketcher.Constraint("DistanceY", -1, 1, 0, 2, 2.0),
])
groove21 = doc.addObject("PartDesign::Groove", "Groove020")
body.addObject(groove21)
groove21.Profile = sketch23
groove21.ReferenceAxis = (sketch23, ["Axis0"])
groove21.Angle = 360

sketch24 = doc.addObject("Sketcher::SketchObject", "Sketch023")
body.addObject(sketch24)
sketch24.AttachmentSupport = (doc.YZ_Plane, [""])
sketch24.MapMode = "FlatFace"
sketch24.AttachmentOffset = App.Placement(App.Vector(0, 0, -200), App.Rotation())
add_polygon(sketch24, [(25, -10.609467), (25, 2), (14, 2), (14, -4)])
sketch24.addGeometry(Part.LineSegment(App.Vector(25, 2, 0), App.Vector(25, -10.609467, 0)), True)
sketch24.addConstraint([
    Sketcher.Constraint("Vertical", 0),
    Sketcher.Constraint("Horizontal", 1),
    Sketcher.Constraint("Vertical", 2),
    Sketcher.Constraint("Vertical", 4),
    Sketcher.Constraint("Coincident", 4, 1, 0, 2),
    Sketcher.Constraint("Equal", 0, 4),
    Sketcher.Constraint("DistanceX", 1, 2, 1, 1, 11.0),
    Sketcher.Constraint("DistanceY", 2, 2, 2, 1, 6.0),
    Sketcher.Constraint("Angle", 3, Q("-31 deg")),
    Sketcher.Constraint("DistanceX", -1, 1, 0, 2, 25.0),
    Sketcher.Constraint("DistanceY", -1, 1, 0, 2, 2.0),
])
groove22 = doc.addObject("PartDesign::Groove", "Groove021")
body.addObject(groove22)
groove22.Profile = sketch24
groove22.ReferenceAxis = (sketch24, ["Axis0"])
groove22.Angle = 360

sketch25 = doc.addObject("Sketcher::SketchObject", "Sketch024")
body.addObject(sketch25)
sketch25.AttachmentSupport = (doc.YZ_Plane, [""])
sketch25.MapMode = "FlatFace"
sketch25.AttachmentOffset = App.Placement(App.Vector(0, 0, -250), App.Rotation())
add_polygon(sketch25, [(25, -10.609467), (25, 2), (14, 2), (14, -4)])
sketch25.addGeometry(Part.LineSegment(App.Vector(25, 2, 0), App.Vector(25, -10.609467, 0)), True)
sketch25.addConstraint([
    Sketcher.Constraint("Vertical", 0),
    Sketcher.Constraint("Horizontal", 1),
    Sketcher.Constraint("Vertical", 2),
    Sketcher.Constraint("Vertical", 4),
    Sketcher.Constraint("Coincident", 4, 1, 0, 2),
    Sketcher.Constraint("Equal", 0, 4),
    Sketcher.Constraint("DistanceX", 1, 2, 1, 1, 11.0),
    Sketcher.Constraint("DistanceY", 2, 2, 2, 1, 6.0),
    Sketcher.Constraint("Angle", 3, Q("-31 deg")),
    Sketcher.Constraint("DistanceX", -1, 1, 0, 2, 25.0),
    Sketcher.Constraint("DistanceY", -1, 1, 0, 2, 2.0),
])
groove23 = doc.addObject("PartDesign::Groove", "Groove022")
body.addObject(groove23)
groove23.Profile = sketch25
groove23.ReferenceAxis = (sketch25, ["Axis0"])
groove23.Angle = 360

sketch26 = doc.addObject("Sketcher::SketchObject", "Sketch025")
body.addObject(sketch26)
sketch26.AttachmentSupport = (doc.XY_Plane, [""])
sketch26.MapMode = "FlatFace"
sketch26.addGeometry([
    Part.Circle(App.Vector(-319, 0, 0), App.Vector(0, 0, 1), 3.3),
    Part.Circle(App.Vector(319, 0, 0), App.Vector(0, 0, 1), 3.3),
], False)
sketch26.addConstraint([
    Sketcher.Constraint("Equal", 0, 1),
    Sketcher.Constraint("Symmetric", 0, 3, 1, 3, -1, 1),
    Sketcher.Constraint("PointOnObject", 0, 3, -1),
    Sketcher.Constraint("Diameter", 0, 6.6),
    Sketcher.Constraint("DistanceX", 0, 3, -1, 1, 319.0),
])
doc.recompute()
hole = doc.addObject("PartDesign::Hole", "Hole")
body.addObject(hole)
hole.Profile = sketch26
hole.ThreadType = "None"
hole.Diameter = 6.6
hole.DepthType = "Dimension"
hole.Depth = 6
hole.DrillPoint = "Angled"
hole.DrillPointAngle = 118
hole.Reversed = True

doc.recompute()
